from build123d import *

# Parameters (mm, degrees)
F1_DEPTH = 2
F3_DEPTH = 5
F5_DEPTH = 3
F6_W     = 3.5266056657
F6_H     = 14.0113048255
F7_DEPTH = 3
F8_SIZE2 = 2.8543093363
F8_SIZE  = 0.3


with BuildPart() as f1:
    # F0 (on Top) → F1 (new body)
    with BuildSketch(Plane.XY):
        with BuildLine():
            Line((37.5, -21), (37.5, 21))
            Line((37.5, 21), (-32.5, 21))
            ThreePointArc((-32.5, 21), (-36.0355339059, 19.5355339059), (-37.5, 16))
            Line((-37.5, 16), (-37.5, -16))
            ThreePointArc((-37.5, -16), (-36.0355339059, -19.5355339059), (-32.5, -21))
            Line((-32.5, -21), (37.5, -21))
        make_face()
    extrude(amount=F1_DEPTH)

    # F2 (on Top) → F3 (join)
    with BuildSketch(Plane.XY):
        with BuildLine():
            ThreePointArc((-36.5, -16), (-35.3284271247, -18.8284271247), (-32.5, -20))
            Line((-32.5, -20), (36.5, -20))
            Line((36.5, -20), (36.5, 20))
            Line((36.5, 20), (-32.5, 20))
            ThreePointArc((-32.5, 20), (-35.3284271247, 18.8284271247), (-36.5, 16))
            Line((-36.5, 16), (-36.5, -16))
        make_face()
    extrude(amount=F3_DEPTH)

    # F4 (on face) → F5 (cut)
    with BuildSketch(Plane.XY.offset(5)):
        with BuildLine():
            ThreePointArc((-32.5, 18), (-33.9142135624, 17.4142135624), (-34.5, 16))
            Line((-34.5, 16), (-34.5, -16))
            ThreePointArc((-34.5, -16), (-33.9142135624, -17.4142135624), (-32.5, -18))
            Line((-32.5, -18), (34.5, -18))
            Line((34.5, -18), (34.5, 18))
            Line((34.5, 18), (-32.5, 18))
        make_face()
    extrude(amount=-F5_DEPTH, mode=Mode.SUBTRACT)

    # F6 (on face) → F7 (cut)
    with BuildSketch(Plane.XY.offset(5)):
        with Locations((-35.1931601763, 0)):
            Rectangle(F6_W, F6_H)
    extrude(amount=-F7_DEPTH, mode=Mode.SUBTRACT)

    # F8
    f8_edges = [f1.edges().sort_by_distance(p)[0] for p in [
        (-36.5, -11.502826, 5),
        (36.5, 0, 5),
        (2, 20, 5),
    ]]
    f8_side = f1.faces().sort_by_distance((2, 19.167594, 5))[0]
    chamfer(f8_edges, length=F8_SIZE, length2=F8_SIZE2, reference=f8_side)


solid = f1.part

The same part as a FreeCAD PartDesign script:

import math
import FreeCAD as App
import Part
import Sketcher


def edges_at(feature, points):
    """Names of the edges that pass closest to the given points."""
    edges = feature.Shape.Edges
    near = lambda p: min(range(len(edges)), key=lambda i: edges[i].distToShape(Part.Vertex(*p))[0])
    return sorted({f"Edge{near(p) + 1}" for p in points})


def add_polygon(sketch, points):
    """Adds a closed chain of lines whose ends are joined by coincident constraints."""
    first, n = sketch.GeometryCount, len(points)
    for a, b in zip(points, points[1:] + points[:1]):
        sketch.addGeometry(Part.LineSegment(App.Vector(*a, 0), App.Vector(*b, 0)), False)
    for i in range(n):
        sketch.addConstraint(Sketcher.Constraint("Coincident", first + i, 2, first + (i + 1) % n, 1))

doc = App.newDocument("Part")
body = doc.addObject("PartDesign::Body", "Body")

# Sketch on XY plane
sketch1 = doc.addObject("Sketcher::SketchObject", "Sketch")
body.addObject(sketch1)
sketch1.AttachmentSupport = (doc.XY_Plane, [""])
sketch1.MapMode = "FlatFace"
sketch1.addGeometry([
    Part.LineSegment(App.Vector(38, -21, 0), App.Vector(38, 21, 0)),  # 0
    Part.LineSegment(App.Vector(38, 21, 0), App.Vector(-32, 21, 0)),  # 1
    Part.ArcOfCircle(Part.Circle(App.Vector(-32, 16, 0), App.Vector(0, 0, 1), 5), math.radians(90), math.radians(180)),  # 2
    Part.LineSegment(App.Vector(-38, 16, 0), App.Vector(-38, -16, 0)),  # 3
    Part.ArcOfCircle(Part.Circle(App.Vector(-32, -16, 0), App.Vector(0, 0, 1), 5), math.radians(180), math.radians(270)),  # 4
    Part.LineSegment(App.Vector(-32, -21, 0), App.Vector(38, -21, 0)),  # 5
], False)
sketch1.addConstraint([
    Sketcher.Constraint("Coincident", 0, 2, 1, 1),
    Sketcher.Constraint("Tangent", 1, 2, 2, 1),
    Sketcher.Constraint("Tangent", 2, 2, 3, 1),
    Sketcher.Constraint("Tangent", 3, 2, 4, 1),
    Sketcher.Constraint("Tangent", 4, 2, 5, 1),
    Sketcher.Constraint("Coincident", 5, 2, 0, 1),
    Sketcher.Constraint("Vertical", 0),
    Sketcher.Constraint("Horizontal", 1),
    Sketcher.Constraint("Vertical", 3),
    Sketcher.Constraint("Horizontal", 5),
    Sketcher.Constraint("Equal", 2, 4),
    Sketcher.Constraint("Radius", 2, 5.0),
    Sketcher.Constraint("DistanceX", 1, 2, 1, 1, 70.0),
    Sketcher.Constraint("DistanceY", 0, 1, 0, 2, 42.0),
    Sketcher.Constraint("DistanceY", -1, 1, 2, 3, 16.0),
    Sketcher.Constraint("DistanceX", 2, 3, -1, 1, 32.5),
])
pad1 = doc.addObject("PartDesign::Pad", "Pad")
body.addObject(pad1)
pad1.Profile = sketch1
pad1.Length = 2

# Sketch on XY plane
sketch2 = doc.addObject("Sketcher::SketchObject", "Sketch001")
body.addObject(sketch2)
sketch2.AttachmentSupport = (doc.XY_Plane, [""])
sketch2.MapMode = "FlatFace"
sketch2.addGeometry([
    Part.ArcOfCircle(Part.Circle(App.Vector(-32.5, -16, 0), App.Vector(0, 0, 1), 4), math.radians(180), math.radians(270)),  # 0
    Part.LineSegment(App.Vector(-32.5, -20, 0), App.Vector(36.5, -20, 0)),  # 1
    Part.LineSegment(App.Vector(36.5, -20, 0), App.Vector(36.5, 20, 0)),  # 2
    Part.LineSegment(App.Vector(36.5, 20, 0), App.Vector(-32.5, 20, 0)),  # 3
    Part.ArcOfCircle(Part.Circle(App.Vector(-32.5, 16, 0), App.Vector(0, 0, 1), 4), math.radians(90), math.radians(180)),  # 4
    Part.LineSegment(App.Vector(-36.5, 16, 0), App.Vector(-36.5, -16, 0)),  # 5
], False)
sketch2.addConstraint([
    Sketcher.Constraint("Tangent", 0, 2, 1, 1),
    Sketcher.Constraint("Coincident", 1, 2, 2, 1),
    Sketcher.Constraint("Coincident", 2, 2, 3, 1),
    Sketcher.Constraint("Tangent", 3, 2, 4, 1),
    Sketcher.Constraint("Tangent", 4, 2, 5, 1),
    Sketcher.Constraint("Tangent", 5, 2, 0, 1),
    Sketcher.Constraint("Horizontal", 1),
    Sketcher.Constraint("Vertical", 2),
    Sketcher.Constraint("Horizontal", 3),
    Sketcher.Constraint("Vertical", 5),
    Sketcher.Constraint("Equal", 0, 4),
    Sketcher.Constraint("Radius", 0, 4.0),
    Sketcher.Constraint("DistanceX", 1, 1, 1, 2, 69.0),
    Sketcher.Constraint("DistanceY", 2, 1, 2, 2, 40.0),
    Sketcher.Constraint("DistanceY", 0, 3, -1, 1, 16.0),
    Sketcher.Constraint("DistanceX", 0, 3, -1, 1, 32.5),
])
pad2 = doc.addObject("PartDesign::Pad", "Pad001")
body.addObject(pad2)
pad2.Profile = sketch2
pad2.Length = 5

# Sketch on XY plane
sketch3 = doc.addObject("Sketcher::SketchObject", "Sketch002")
body.addObject(sketch3)
sketch3.AttachmentSupport = (doc.XY_Plane, [""])
sketch3.MapMode = "FlatFace"
sketch3.AttachmentOffset = App.Placement(App.Vector(0, 0, 5), App.Rotation())
sketch3.addGeometry([
    Part.ArcOfCircle(Part.Circle(App.Vector(-32.5, 16, 0), App.Vector(0, 0, 1), 2), math.radians(90), math.radians(180)),  # 0
    Part.LineSegment(App.Vector(-34.5, 16, 0), App.Vector(-34.5, -16, 0)),  # 1
    Part.ArcOfCircle(Part.Circle(App.Vector(-32.5, -16, 0), App.Vector(0, 0, 1), 2), math.radians(180), math.radians(270)),  # 2
    Part.LineSegment(App.Vector(-32.5, -18, 0), App.Vector(34.5, -18, 0)),  # 3
    Part.LineSegment(App.Vector(34.5, -18, 0), App.Vector(34.5, 18, 0)),  # 4
    Part.LineSegment(App.Vector(34.5, 18, 0), App.Vector(-32.5, 18, 0)),  # 5
], False)
sketch3.addConstraint([
    Sketcher.Constraint("Tangent", 0, 2, 1, 1),
    Sketcher.Constraint("Tangent", 1, 2, 2, 1),
    Sketcher.Constraint("Tangent", 2, 2, 3, 1),
    Sketcher.Constraint("Coincident", 3, 2, 4, 1),
    Sketcher.Constraint("Coincident", 4, 2, 5, 1),
    Sketcher.Constraint("Tangent", 5, 2, 0, 1),
    Sketcher.Constraint("Vertical", 1),
    Sketcher.Constraint("Horizontal", 3),
    Sketcher.Constraint("Vertical", 4),
    Sketcher.Constraint("Horizontal", 5),
    Sketcher.Constraint("Equal", 0, 2),
    Sketcher.Constraint("Radius", 0, 2.0),
    Sketcher.Constraint("DistanceX", 3, 1, 3, 2, 67.0),
    Sketcher.Constraint("DistanceY", 1, 2, 1, 1, 32.0),
    Sketcher.Constraint("DistanceY", -1, 1, 0, 3, 16.0),
    Sketcher.Constraint("DistanceX", 0, 3, -1, 1, 32.5),
])
pocket1 = doc.addObject("PartDesign::Pocket", "Pocket")
body.addObject(pocket1)
pocket1.Profile = sketch3
pocket1.Length = 3

# Sketch on XY plane
sketch4 = doc.addObject("Sketcher::SketchObject", "Sketch003")
body.addObject(sketch4)
sketch4.AttachmentSupport = (doc.XY_Plane, [""])
sketch4.MapMode = "FlatFace"
sketch4.AttachmentOffset = App.Placement(App.Vector(0, 0, 5), App.Rotation())
add_polygon(sketch4, [(-37, 7), (-37, -7), (-33.4, -7), (-33.4, 7)])  # lines 0-3
sketch4.addConstraint([
    Sketcher.Constraint("Vertical", 0),
    Sketcher.Constraint("Horizontal", 1),
    Sketcher.Constraint("Vertical", 2),
    Sketcher.Constraint("Horizontal", 3),
    Sketcher.Constraint("DistanceX", 1, 1, 1, 2, 3.526606),
    Sketcher.Constraint("DistanceY", 0, 2, 0, 1, 14.011305),
    Sketcher.Constraint("DistanceX", 0, 2, -1, 1, 36.956463),
    Sketcher.Constraint("DistanceY", 0, 2, -1, 1, 7.005652),
])
pocket2 = doc.addObject("PartDesign::Pocket", "Pocket001")
body.addObject(pocket2)
pocket2.Profile = sketch4
pocket2.Length = 3
doc.recompute()

chamfer = doc.addObject("PartDesign::Chamfer", "Chamfer")
body.addObject(chamfer)
chamfer.Base = (pocket2, edges_at(pocket2, [(-36.5, -11.503, 5), (36.5, 0, 5), (2, 20, 5)]))
chamfer.ChamferType = "Two distances"
chamfer.Size = 0.3
chamfer.Size2 = 2.854309
chamfer.FlipDirection = True

doc.recompute()
